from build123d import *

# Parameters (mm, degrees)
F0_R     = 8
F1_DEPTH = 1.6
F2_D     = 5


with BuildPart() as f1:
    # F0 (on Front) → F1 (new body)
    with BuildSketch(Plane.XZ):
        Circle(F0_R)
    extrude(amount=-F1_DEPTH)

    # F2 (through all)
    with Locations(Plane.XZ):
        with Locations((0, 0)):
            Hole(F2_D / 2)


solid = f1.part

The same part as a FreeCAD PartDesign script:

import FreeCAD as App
import Part
import Sketcher
from FreeCAD import Vector
Q = App.Units.Quantity

doc = App.newDocument("Part")
params = doc.addObject("Spreadsheet::Sheet", "Params")
for row, (alias, value) in enumerate([
    ("sketch1_diameter", "16 mm"),
    ("pad1_length", "1.6 mm"),
    ("sketch2_diameter", "5 mm"),
    ("hole_diameter", "5 mm"),
], start=1):
    params.set(f"A{row}", alias)
    params.set(f"B{row}", "=" + value)
    params.setAlias(f"B{row}", alias)

body = doc.addObject("PartDesign::Body", "Body")

sketch1 = body.newObject("Sketcher::SketchObject", "Sketch")
sketch1.AttachmentSupport = (doc.getObject("XZ_Plane"), [""])
sketch1.MapMode = "FlatFace"
sketch1.addGeometry(Part.Circle(Vector(0, 0, 0), Vector(0, 0, 1), 8), False)
sketch1.addConstraint(Sketcher.Constraint("Coincident", 0, 3, -1, 1))
sketch1.addConstraint(Sketcher.Constraint("Diameter", 0, Q("16 mm")))
sketch1.setExpression("Constraints[1]", "Params.sketch1_diameter")
pad1 = body.newObject("PartDesign::Pad", "Pad")
pad1.Profile = sketch1
pad1.setExpression("Length", "Params.pad1_length")
pad1.Reversed = True

sketch2 = body.newObject("Sketcher::SketchObject", "Sketch001")
sketch2.AttachmentSupport = (doc.getObject("XZ_Plane"), [""])
sketch2.MapMode = "FlatFace"
sketch2.addGeometry(Part.Circle(Vector(0, 0, 0), Vector(0, 0, 1), 2.5), False)
sketch2.addConstraint(Sketcher.Constraint("Coincident", 0, 3, -1, 1))
sketch2.addConstraint(Sketcher.Constraint("Diameter", 0, Q("5 mm")))
sketch2.setExpression("Constraints[1]", "Params.sketch2_diameter")
doc.recompute()
hole = body.newObject("PartDesign::Hole", "Hole")
hole.Profile = sketch2
hole.ThreadType = "None"
hole.setExpression("Diameter", "Params.hole_diameter")
hole.DepthType = "ThroughAll"

doc.recompute()
